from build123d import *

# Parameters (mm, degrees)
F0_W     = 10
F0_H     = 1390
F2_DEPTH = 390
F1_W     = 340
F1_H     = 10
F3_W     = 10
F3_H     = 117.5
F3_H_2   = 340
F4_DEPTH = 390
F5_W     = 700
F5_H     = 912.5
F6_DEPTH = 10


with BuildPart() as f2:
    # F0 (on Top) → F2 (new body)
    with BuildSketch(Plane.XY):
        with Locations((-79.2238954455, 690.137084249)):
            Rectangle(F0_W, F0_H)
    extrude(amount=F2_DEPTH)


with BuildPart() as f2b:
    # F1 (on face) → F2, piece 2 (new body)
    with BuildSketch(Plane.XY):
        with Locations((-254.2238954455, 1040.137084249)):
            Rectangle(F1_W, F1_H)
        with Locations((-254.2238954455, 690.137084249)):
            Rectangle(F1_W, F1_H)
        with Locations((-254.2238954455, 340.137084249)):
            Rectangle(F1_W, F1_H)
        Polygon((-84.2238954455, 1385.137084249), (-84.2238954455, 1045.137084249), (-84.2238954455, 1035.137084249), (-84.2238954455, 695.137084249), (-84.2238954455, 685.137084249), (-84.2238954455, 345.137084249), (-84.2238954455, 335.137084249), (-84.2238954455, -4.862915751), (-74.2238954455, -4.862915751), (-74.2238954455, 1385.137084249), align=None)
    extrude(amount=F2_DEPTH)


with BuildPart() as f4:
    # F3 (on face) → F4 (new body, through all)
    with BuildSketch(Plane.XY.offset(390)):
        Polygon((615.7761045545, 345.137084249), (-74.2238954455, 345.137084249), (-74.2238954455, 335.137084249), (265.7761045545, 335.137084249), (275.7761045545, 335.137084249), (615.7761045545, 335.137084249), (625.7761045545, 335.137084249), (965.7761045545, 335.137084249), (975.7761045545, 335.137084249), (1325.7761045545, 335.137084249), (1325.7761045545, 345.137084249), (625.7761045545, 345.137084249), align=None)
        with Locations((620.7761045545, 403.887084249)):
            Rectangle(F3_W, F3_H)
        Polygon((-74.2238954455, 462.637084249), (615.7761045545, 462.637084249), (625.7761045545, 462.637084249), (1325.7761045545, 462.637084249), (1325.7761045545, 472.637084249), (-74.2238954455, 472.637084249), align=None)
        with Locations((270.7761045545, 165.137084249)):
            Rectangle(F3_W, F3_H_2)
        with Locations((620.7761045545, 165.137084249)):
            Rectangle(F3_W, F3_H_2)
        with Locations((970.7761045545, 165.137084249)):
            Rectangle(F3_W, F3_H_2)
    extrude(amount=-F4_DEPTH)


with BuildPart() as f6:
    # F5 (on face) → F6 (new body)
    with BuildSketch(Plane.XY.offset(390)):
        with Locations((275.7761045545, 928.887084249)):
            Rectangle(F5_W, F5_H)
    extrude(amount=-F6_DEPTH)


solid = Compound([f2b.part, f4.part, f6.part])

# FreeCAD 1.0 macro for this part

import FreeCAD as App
import Part
import Sketcher

V = App.Vector

doc = App.newDocument("Part")
body = doc.addObject("PartDesign::Body", "Body")

sketch1 = body.newObject("Sketcher::SketchObject", "Sketch")
sketch1.AttachmentSupport = (doc.getObject("XY_Plane"), [""])
sketch1.MapMode = "FlatFace"
sketch1.addGeometry([
    Part.LineSegment(V(-84, 1385, 0), V(-84, -5, 0)),
    Part.LineSegment(V(-84, -5, 0), V(-74, -5, 0)),
    Part.LineSegment(V(-74, -5, 0), V(-74, 1385, 0)),
    Part.LineSegment(V(-74, 1385, 0), V(-84, 1385, 0)),
], False)
sketch1.addConstraint([
    Sketcher.Constraint("Coincident", 0, 2, 1, 1),
    Sketcher.Constraint("Coincident", 1, 2, 2, 1),
    Sketcher.Constraint("Coincident", 2, 2, 3, 1),
    Sketcher.Constraint("Coincident", 3, 2, 0, 1),
    Sketcher.Constraint("Vertical", 0),
    Sketcher.Constraint("Horizontal", 1),
    Sketcher.Constraint("Vertical", 2),
    Sketcher.Constraint("Horizontal", 3),
    Sketcher.Constraint("DistanceX", 1, 1, 1, 2, 10.0),
    Sketcher.Constraint("DistanceY", 0, 2, 0, 1, 1390.0),
    Sketcher.Constraint("DistanceX", 0, 2, -1, 1, 84.223895),
    Sketcher.Constraint("DistanceY", 0, 2, -1, 1, 4.862916),
])
pad1 = body.newObject("PartDesign::Pad", "Pad")
pad1.Profile = sketch1
pad1.Length = 390
body2 = doc.addObject("PartDesign::Body", "Body001")

sketch2 = body2.newObject("Sketcher::SketchObject", "Sketch001")
sketch2.AttachmentSupport = (doc.getObject("XY_Plane001"), [""])
sketch2.MapMode = "FlatFace"
sketch2.addGeometry([
    Part.LineSegment(V(-424, 1045, 0), V(-424, 1035, 0)),
    Part.LineSegment(V(-424, 1035, 0), V(-84, 1035, 0)),
    Part.LineSegment(V(-84, 1035, 0), V(-84, 695, 0)),
    Part.LineSegment(V(-84, 695, 0), V(-424, 695, 0)),
    Part.LineSegment(V(-424, 695, 0), V(-424, 685, 0)),
    Part.LineSegment(V(-424, 685, 0), V(-84, 685, 0)),
    Part.LineSegment(V(-84, 685, 0), V(-84, 345, 0)),
    Part.LineSegment(V(-84, 345, 0), V(-424, 345, 0)),
    Part.LineSegment(V(-424, 345, 0), V(-424, 335, 0)),
    Part.LineSegment(V(-424, 335, 0), V(-84, 335, 0)),
    Part.LineSegment(V(-84, 335, 0), V(-84, -5, 0)),
    Part.LineSegment(V(-84, -5, 0), V(-74, -5, 0)),
    Part.LineSegment(V(-74, -5, 0), V(-74, 1385, 0)),
    Part.LineSegment(V(-74, 1385, 0), V(-84, 1385, 0)),
    Part.LineSegment(V(-84, 1385, 0), V(-84, 1045, 0)),
    Part.LineSegment(V(-84, 1045, 0), V(-424, 1045, 0)),
], False)
sketch2.addConstraint([
    Sketcher.Constraint("Coincident", 0, 2, 1, 1),
    Sketcher.Constraint("Coincident", 1, 2, 2, 1),
    Sketcher.Constraint("Coincident", 2, 2, 3, 1),
    Sketcher.Constraint("Coincident", 3, 2, 4, 1),
    Sketcher.Constraint("Coincident", 4, 2, 5, 1),
    Sketcher.Constraint("Coincident", 5, 2, 6, 1),
    Sketcher.Constraint("Coincident", 6, 2, 7, 1),
    Sketcher.Constraint("Coincident", 7, 2, 8, 1),
    Sketcher.Constraint("Coincident", 8, 2, 9, 1),
    Sketcher.Constraint("Coincident", 9, 2, 10, 1),
    Sketcher.Constraint("Coincident", 10, 2, 11, 1),
    Sketcher.Constraint("Coincident", 11, 2, 12, 1),
    Sketcher.Constraint("Coincident", 12, 2, 13, 1),
    Sketcher.Constraint("Coincident", 13, 2, 14, 1),
    Sketcher.Constraint("Coincident", 14, 2, 15, 1),
    Sketcher.Constraint("Coincident", 15, 2, 0, 1),
    Sketcher.Constraint("Vertical", 0),
    Sketcher.Constraint("Horizontal", 1),
    Sketcher.Constraint("Vertical", 2),
    Sketcher.Constraint("Horizontal", 3),
    Sketcher.Constraint("Vertical", 4),
    Sketcher.Constraint("Horizontal", 5),
    Sketcher.Constraint("Vertical", 6),
    Sketcher.Constraint("Horizontal", 7),
    Sketcher.Constraint("Vertical", 8),
    Sketcher.Constraint("Horizontal", 9),
    Sketcher.Constraint("Vertical", 10),
    Sketcher.Constraint("Horizontal", 11),
    Sketcher.Constraint("Vertical", 12),
    Sketcher.Constraint("Horizontal", 13),
    Sketcher.Constraint("Vertical", 14),
    Sketcher.Constraint("Horizontal", 15),
    Sketcher.Constraint("Vertical", 0, 2, 3, 2),
    Sketcher.Constraint("Vertical", 2, 2, 5, 2),
    Sketcher.Constraint("Vertical", 4, 2, 7, 2),
    Sketcher.Constraint("Vertical", 6, 2, 9, 2),
    Sketcher.Constraint("Vertical", 10, 2, 13, 2),
    Sketcher.Constraint("Equal", 13, 0),
    Sketcher.Constraint("Equal", 15, 2),
    Sketcher.Constraint("Equal", 0, 4),
    Sketcher.Constraint("Equal", 2, 6),
    Sketcher.Constraint("Equal", 4, 8),
    Sketcher.Constraint("Equal", 6, 10),
    Sketcher.Constraint("Equal", 10, 14),
    Sketcher.Constraint("DistanceX", 1, 1, 1, 2, 340.0),
    Sketcher.Constraint("DistanceX", 11, 1, 11, 2, 10.0),
    Sketcher.Constraint("DistanceX", 0, 2, -1, 1, 424.223895),
    Sketcher.Constraint("DistanceY", -1, 1, 0, 2, 1035.137084),
])
pad2 = body2.newObject("PartDesign::Pad", "Pad001")
pad2.Profile = sketch2
pad2.Length = 390
body3 = doc.addObject("PartDesign::Body", "Body002")

sketch3 = body3.newObject("Sketcher::SketchObject", "Sketch002")
sketch3.AttachmentSupport = (doc.getObject("XY_Plane002"), [""])
sketch3.MapMode = "FlatFace"
sketch3.AttachmentOffset = App.Placement(V(0, 0, 390), App.Rotation())
sketch3.addGeometry([
    Part.LineSegment(V(-74, 345, 0), V(-74, 335, 0)),
    Part.LineSegment(V(-74, 335, 0), V(266, 335, 0)),
    Part.LineSegment(V(266, 335, 0), V(266, -5, 0)),
    Part.LineSegment(V(266, -5, 0), V(276, -5, 0)),
    Part.LineSegment(V(276, -5, 0), V(276, 335, 0)),
    Part.LineSegment(V(276, 335, 0), V(616, 335, 0)),
    Part.LineSegment(V(616, 335, 0), V(616, -5, 0)),
    Part.LineSegment(V(616, -5, 0), V(626, -5, 0)),
    Part.LineSegment(V(626, -5, 0), V(626, 335, 0)),
    Part.LineSegment(V(626, 335, 0), V(966, 335, 0)),
    Part.LineSegment(V(966, 335, 0), V(966, -5, 0)),
    Part.LineSegment(V(966, -5, 0), V(976, -5, 0)),
    Part.LineSegment(V(976, -5, 0), V(976, 335, 0)),
    Part.LineSegment(V(976, 335, 0), V(1326, 335, 0)),
    Part.LineSegment(V(1326, 335, 0), V(1326, 345, 0)),
    Part.LineSegment(V(1326, 345, 0), V(626, 345, 0)),
    Part.LineSegment(V(626, 345, 0), V(626, 463, 0)),
    Part.LineSegment(V(626, 463, 0), V(1326, 463, 0)),
    Part.LineSegment(V(1326, 463, 0), V(1326, 473, 0)),
    Part.LineSegment(V(1326, 473, 0), V(-74, 473, 0)),
    Part.LineSegment(V(-74, 473, 0), V(-74, 463, 0)),
    Part.LineSegment(V(-74, 463, 0), V(616, 463, 0)),
    Part.LineSegment(V(616, 463, 0), V(616, 345, 0)),
    Part.LineSegment(V(616, 345, 0), V(-74, 345, 0)),
], False)
sketch3.addConstraint([
    Sketcher.Constraint("Coincident", 0, 2, 1, 1),
    Sketcher.Constraint("Coincident", 1, 2, 2, 1),
    Sketcher.Constraint("Coincident", 2, 2, 3, 1),
    Sketcher.Constraint("Coincident", 3, 2, 4, 1),
    Sketcher.Constraint("Coincident", 4, 2, 5, 1),
    Sketcher.Constraint("Coincident", 5, 2, 6, 1),
    Sketcher.Constraint("Coincident", 6, 2, 7, 1),
    Sketcher.Constraint("Coincident", 7, 2, 8, 1),
    Sketcher.Constraint("Coincident", 8, 2, 9, 1),
    Sketcher.Constraint("Coincident", 9, 2, 10, 1),
    Sketcher.Constraint("Coincident", 10, 2, 11, 1),
    Sketcher.Constraint("Coincident", 11, 2, 12, 1),
    Sketcher.Constraint("Coincident", 12, 2, 13, 1),
    Sketcher.Constraint("Coincident", 13, 2, 14, 1),
    Sketcher.Constraint("Coincident", 14, 2, 15, 1),
    Sketcher.Constraint("Coincident", 15, 2, 16, 1),
    Sketcher.Constraint("Coincident", 16, 2, 17, 1),
    Sketcher.Constraint("Coincident", 17, 2, 18, 1),
    Sketcher.Constraint("Coincident", 18, 2, 19, 1),
    Sketcher.Constraint("Coincident", 19, 2, 20, 1),
    Sketcher.Constraint("Coincident", 20, 2, 21, 1),
    Sketcher.Constraint("Coincident", 21, 2, 22, 1),
    Sketcher.Constraint("Coincident", 22, 2, 23, 1),
    Sketcher.Constraint("Coincident", 23, 2, 0, 1),
    Sketcher.Constraint("Vertical", 0),
    Sketcher.Constraint("Horizontal", 1),
    Sketcher.Constraint("Vertical", 2),
    Sketcher.Constraint("Horizontal", 3),
    Sketcher.Constraint("Vertical", 4),
    Sketcher.Constraint("Horizontal", 5),
    Sketcher.Constraint("Vertical", 6),
    Sketcher.Constraint("Horizontal", 7),
    Sketcher.Constraint("Vertical", 8),
    Sketcher.Constraint("Horizontal", 9),
    Sketcher.Constraint("Vertical", 10),
    Sketcher.Constraint("Horizontal", 11),
    Sketcher.Constraint("Vertical", 12),
    Sketcher.Constraint("Horizontal", 13),
    Sketcher.Constraint("Vertical", 14),
    Sketcher.Constraint("Horizontal", 15),
    Sketcher.Constraint("Vertical", 16),
    Sketcher.Constraint("Horizontal", 17),
    Sketcher.Constraint("Vertical", 18),
    Sketcher.Constraint("Horizontal", 19),
    Sketcher.Constraint("Vertical", 20),
    Sketcher.Constraint("Horizontal", 21),
    Sketcher.Constraint("Vertical", 22),
    Sketcher.Constraint("Horizontal", 23),
    Sketcher.Constraint("Horizontal", 1, 2, 4, 2),
    Sketcher.Constraint("Horizontal", 3, 2, 6, 2),
    Sketcher.Constraint("Horizontal", 5, 2, 8, 2),
    Sketcher.Constraint("Horizontal", 7, 2, 10, 2),
    Sketcher.Constraint("Horizontal", 9, 2, 12, 2),
    Sketcher.Constraint("Horizontal", 17, 2, 20, 2),
    Sketcher.Constraint("Horizontal", 15, 2, 22, 2),
    Sketcher.Constraint("Vertical", 8, 2, 15, 2),
    Sketcher.Constraint("Vertical", 14, 2, 17, 2),
    Sketcher.Constraint("Vertical", 0, 2, 19, 2),
    Sketcher.Constraint("Vertical", 6, 2, 21, 2),
    Sketcher.Constraint("Equal", 1, 5),
    Sketcher.Constraint("Equal", 3, 7),
    Sketcher.Constraint("Equal", 5, 9),
    Sketcher.Constraint("Equal", 7, 11),
    Sketcher.Constraint("Equal", 11, 0),
    Sketcher.Constraint("Equal", 9, 2),
    Sketcher.Constraint("Equal", 14, 18),
    Sketcher.Constraint("DistanceX", 1, 1, 1, 2, 340.0),
    Sketcher.Constraint("DistanceX", 3, 1, 3, 2, 10.0),
    Sketcher.Constraint("DistanceX", 13, 1, 13, 2, 350.0),
    Sketcher.Constraint("DistanceY", 16, 1, 16, 2, 117.5),
    Sketcher.Constraint("DistanceX", 0, 2, -1, 1, 74.223895),
    Sketcher.Constraint("DistanceY", -1, 1, 0, 2, 335.137084),
])
pad3 = body3.newObject("PartDesign::Pad", "Pad002")
pad3.Profile = sketch3
pad3.Length = 390
pad3.Reversed = True
body4 = doc.addObject("PartDesign::Body", "Body003")

sketch4 = body4.newObject("Sketcher::SketchObject", "Sketch003")
sketch4.AttachmentSupport = (doc.getObject("XY_Plane003"), [""])
sketch4.MapMode = "FlatFace"
sketch4.AttachmentOffset = App.Placement(V(0, 0, 390), App.Rotation())
sketch4.addGeometry([
    Part.LineSegment(V(-74, 1385, 0), V(-74, 473, 0)),
    Part.LineSegment(V(-74, 473, 0), V(626, 473, 0)),
    Part.LineSegment(V(626, 473, 0), V(626, 1385, 0)),
    Part.LineSegment(V(626, 1385, 0), V(-74, 1385, 0)),
], False)
sketch4.addConstraint([
    Sketcher.Constraint("Coincident", 0, 2, 1, 1),
    Sketcher.Constraint("Coincident", 1, 2, 2, 1),
    Sketcher.Constraint("Coincident", 2, 2, 3, 1),
    Sketcher.Constraint("Coincident", 3, 2, 0, 1),
    Sketcher.Constraint("Vertical", 0),
    Sketcher.Constraint("Horizontal", 1),
    Sketcher.Constraint("Vertical", 2),
    Sketcher.Constraint("Horizontal", 3),
    Sketcher.Constraint("DistanceX", 1, 1, 1, 2, 700.0),
    Sketcher.Constraint("DistanceY", 0, 2, 0, 1, 912.5),
    Sketcher.Constraint("DistanceX", 0, 2, -1, 1, 74.223895),
    Sketcher.Constraint("DistanceY", -1, 1, 0, 2, 472.637084),
])
pad4 = body4.newObject("PartDesign::Pad", "Pad003")
pad4.Profile = sketch4
pad4.Length = 10
pad4.Reversed = True
body.Visibility = False

doc.recompute()
